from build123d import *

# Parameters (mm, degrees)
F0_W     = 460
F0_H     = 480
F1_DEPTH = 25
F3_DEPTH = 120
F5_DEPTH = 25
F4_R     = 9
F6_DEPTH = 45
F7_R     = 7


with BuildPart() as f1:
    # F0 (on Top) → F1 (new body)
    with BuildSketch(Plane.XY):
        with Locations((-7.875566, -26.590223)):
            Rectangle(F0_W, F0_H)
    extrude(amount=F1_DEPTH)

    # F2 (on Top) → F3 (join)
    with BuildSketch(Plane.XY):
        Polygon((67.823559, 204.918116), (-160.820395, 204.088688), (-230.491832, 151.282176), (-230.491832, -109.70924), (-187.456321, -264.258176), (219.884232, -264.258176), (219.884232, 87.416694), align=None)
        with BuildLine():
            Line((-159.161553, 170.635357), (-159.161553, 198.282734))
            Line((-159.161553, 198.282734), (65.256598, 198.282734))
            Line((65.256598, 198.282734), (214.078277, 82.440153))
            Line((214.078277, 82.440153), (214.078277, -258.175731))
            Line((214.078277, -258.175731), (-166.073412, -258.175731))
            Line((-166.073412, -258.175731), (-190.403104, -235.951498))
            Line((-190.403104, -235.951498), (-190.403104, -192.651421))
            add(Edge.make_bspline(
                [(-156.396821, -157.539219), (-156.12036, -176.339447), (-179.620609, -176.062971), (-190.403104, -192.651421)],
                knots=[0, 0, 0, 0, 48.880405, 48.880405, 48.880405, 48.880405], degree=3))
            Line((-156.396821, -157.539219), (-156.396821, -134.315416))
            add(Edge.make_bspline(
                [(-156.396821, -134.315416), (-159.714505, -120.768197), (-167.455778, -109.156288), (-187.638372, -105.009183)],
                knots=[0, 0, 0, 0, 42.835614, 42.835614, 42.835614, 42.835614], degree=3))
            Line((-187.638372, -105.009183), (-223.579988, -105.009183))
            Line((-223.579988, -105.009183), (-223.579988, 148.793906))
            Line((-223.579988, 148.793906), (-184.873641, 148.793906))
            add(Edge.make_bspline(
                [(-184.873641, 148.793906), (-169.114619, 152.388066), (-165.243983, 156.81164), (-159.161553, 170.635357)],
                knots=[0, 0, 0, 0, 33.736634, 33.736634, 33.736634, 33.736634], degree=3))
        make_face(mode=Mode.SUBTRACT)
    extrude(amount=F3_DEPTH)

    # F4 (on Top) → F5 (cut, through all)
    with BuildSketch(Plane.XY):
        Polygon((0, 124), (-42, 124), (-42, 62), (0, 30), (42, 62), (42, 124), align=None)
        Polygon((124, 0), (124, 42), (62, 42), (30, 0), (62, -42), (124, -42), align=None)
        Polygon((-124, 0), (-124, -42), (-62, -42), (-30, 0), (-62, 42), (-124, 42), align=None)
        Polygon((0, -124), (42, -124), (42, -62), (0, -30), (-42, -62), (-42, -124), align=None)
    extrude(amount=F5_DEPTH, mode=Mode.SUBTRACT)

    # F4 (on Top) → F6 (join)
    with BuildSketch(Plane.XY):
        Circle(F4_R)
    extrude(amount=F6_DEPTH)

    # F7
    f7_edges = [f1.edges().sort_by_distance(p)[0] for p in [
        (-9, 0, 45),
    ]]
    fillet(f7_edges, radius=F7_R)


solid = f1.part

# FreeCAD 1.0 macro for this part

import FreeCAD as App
import Part
import Sketcher

V = App.Vector
Q = App.Units.Quantity


def edges_at(feature, points):
    """Names of the edges that pass closest to the given points."""
    edges = feature.Shape.Edges
    near = lambda p: min(range(len(edges)), key=lambda i: edges[i].distToShape(Part.Vertex(*p))[0])
    return sorted({f"Edge{near(p) + 1}" for p in points})

doc = App.newDocument("Part")
params = doc.addObject("Spreadsheet::Sheet", "Params")
for row, (alias, value) in enumerate([
    ("sketch1_width", "460 mm"),
    ("sketch1_height", "480 mm"),
    ("pad1_length", "25 mm"),
    ("pad2_length", "120 mm"),
    ("sketch3_width", "84 mm"),
    ("sketch3_width2", "62 mm"),
    ("sketch4_diameter", "18 mm"),
    ("pad3_length", "45 mm"),
    ("fillet_radius", "7 mm"),
], start=1):
    params.set(f"A{row}", alias)
    params.set(f"B{row}", "=" + value)
    params.setAlias(f"B{row}", alias)

body = doc.addObject("PartDesign::Body", "Body")

# Sketch on XY plane
sketch1 = body.newObject("Sketcher::SketchObject", "Sketch")
sketch1.AttachmentSupport = (doc.getObject("XY_Plane"), [""])
sketch1.MapMode = "FlatFace"
sketch1.addGeometry([
    Part.LineSegment(V(-238, 213, 0), V(-238, -267, 0)),
    Part.LineSegment(V(-238, -267, 0), V(222, -267, 0)),
    Part.LineSegment(V(222, -267, 0), V(222, 213, 0)),
    Part.LineSegment(V(222, 213, 0), V(-238, 213, 0)),
], False)
sketch1.addConstraint([
    Sketcher.Constraint("Coincident", 0, 2, 1, 1),
    Sketcher.Constraint("Coincident", 1, 2, 2, 1),
    Sketcher.Constraint("Coincident", 2, 2, 3, 1),
    Sketcher.Constraint("Coincident", 3, 2, 0, 1),
    Sketcher.Constraint("Vertical", 0),
    Sketcher.Constraint("Horizontal", 1),
    Sketcher.Constraint("Vertical", 2),
    Sketcher.Constraint("Horizontal", 3),
    Sketcher.Constraint("DistanceX", 1, 1, 1, 2, Q("460 mm")),
    Sketcher.Constraint("DistanceY", 0, 2, 0, 1, Q("480 mm")),
    Sketcher.Constraint("DistanceX", 0, 2, -1, 1, Q("237.875566 mm")),
    Sketcher.Constraint("DistanceY", 0, 2, -1, 1, Q("266.590223 mm")),
])
sketch1.setExpression("Constraints[8]", "Params.sketch1_width")
sketch1.setExpression("Constraints[9]", "Params.sketch1_height")
pad1 = body.newObject("PartDesign::Pad", "Pad")
pad1.Profile = sketch1
pad1.setExpression("Length", "Params.pad1_length")

# Sketch on XY plane
sketch2 = body.newObject("Sketcher::SketchObject", "Sketch001")
sketch2.AttachmentSupport = (doc.getObject("XY_Plane"), [""])
sketch2.MapMode = "FlatFace"
sketch2.addGeometry([
    Part.LineSegment(V(67.823559, 204.918116, 0), V(-160.820395, 204.088688, 0)),  # 0
    Part.LineSegment(V(-160.820395, 204.088688, 0), V(-230.491832, 151.282176, 0)),  # 1
    Part.LineSegment(V(-230.491832, 151.282176, 0), V(-230.491832, -109.70924, 0)),  # 2
    Part.LineSegment(V(-230.491832, -109.70924, 0), V(-187.456321, -264.258176, 0)),  # 3
    Part.LineSegment(V(-187.456321, -264.258176, 0), V(219.884232, -264.258176, 0)),  # 4
    Part.LineSegment(V(219.884232, -264.258176, 0), V(219.884232, 87.416694, 0)),  # 5
    Part.LineSegment(V(219.884232, 87.416694, 0), V(67.823559, 204.918116, 0)),  # 6
    Part.BSplineCurve([V(-184.873641, 148.793906, 0), V(-169.114619, 152.388066, 0), V(-165.243983, 156.81164, 0), V(-159.161553, 170.635357, 0)], [4, 4], [0, 33.736634], False, 3, [1, 1, 1, 1], False),  # 7
    Part.LineSegment(V(-159.161553, 170.635357, 0), V(-159.161553, 198.282734, 0)),  # 8
    Part.LineSegment(V(-159.161553, 198.282734, 0), V(65.256598, 198.282734, 0)),  # 9
    Part.LineSegment(V(65.256598, 198.282734, 0), V(214.078277, 82.440153, 0)),  # 10
    Part.LineSegment(V(214.078277, 82.440153, 0), V(214.078277, -258.175731, 0)),  # 11
    Part.LineSegment(V(214.078277, -258.175731, 0), V(-166.073412, -258.175731, 0)),  # 12
    Part.LineSegment(V(-166.073412, -258.175731, 0), V(-190.403104, -235.951498, 0)),  # 13
    Part.LineSegment(V(-190.403104, -235.951498, 0), V(-190.403104, -192.651421, 0)),  # 14
    Part.BSplineCurve([V(-156.396821, -157.539219, 0), V(-156.12036, -176.339447, 0), V(-179.620609, -176.062971, 0), V(-190.403104, -192.651421, 0)], [4, 4], [0, 48.880405], False, 3, [1, 1, 1, 1], False),  # 15
    Part.LineSegment(V(-156.396821, -157.539219, 0), V(-156.396821, -134.315416, 0)),  # 16
    Part.BSplineCurve([V(-156.396821, -134.315416, 0), V(-159.714505, -120.768197, 0), V(-167.455778, -109.156288, 0), V(-187.638372, -105.009183, 0)], [4, 4], [0, 42.835614], False, 3, [1, 1, 1, 1], False),  # 17
    Part.LineSegment(V(-187.638372, -105.009183, 0), V(-223.579988, -105.009183, 0)),  # 18
    Part.LineSegment(V(-223.579988, -105.009183, 0), V(-223.579988, 148.793906, 0)),  # 19
    Part.LineSegment(V(-223.579988, 148.793906, 0), V(-184.873641, 148.793906, 0)),  # 20
], False)
sketch2.addConstraint([
    Sketcher.Constraint("Block", 7),
    Sketcher.Constraint("Block", 15),
    Sketcher.Constraint("Block", 17),
    Sketcher.Constraint("Coincident", 0, 2, 1, 1),
    Sketcher.Constraint("Coincident", 1, 2, 2, 1),
    Sketcher.Constraint("Coincident", 2, 2, 3, 1),
    Sketcher.Constraint("Coincident", 3, 2, 4, 1),
    Sketcher.Constraint("Coincident", 4, 2, 5, 1),
    Sketcher.Constraint("Coincident", 5, 2, 6, 1),
    Sketcher.Constraint("Coincident", 6, 2, 0, 1),
    Sketcher.Constraint("Coincident", 7, 2, 8, 1),
    Sketcher.Constraint("Coincident", 8, 2, 9, 1),
    Sketcher.Constraint("Coincident", 9, 2, 10, 1),
    Sketcher.Constraint("Coincident", 10, 2, 11, 1),
    Sketcher.Constraint("Coincident", 11, 2, 12, 1),
    Sketcher.Constraint("Coincident", 12, 2, 13, 1),
    Sketcher.Constraint("Coincident", 13, 2, 14, 1),
    Sketcher.Constraint("Coincident", 14, 2, 15, 2),
    Sketcher.Constraint("Coincident", 15, 1, 16, 1),
    Sketcher.Constraint("Coincident", 16, 2, 17, 1),
    Sketcher.Constraint("Coincident", 17, 2, 18, 1),
    Sketcher.Constraint("Coincident", 18, 2, 19, 1),
    Sketcher.Constraint("Coincident", 19, 2, 20, 1),
    Sketcher.Constraint("Coincident", 20, 2, 7, 1),
    Sketcher.Constraint("Vertical", 2),
    Sketcher.Constraint("Horizontal", 4),
    Sketcher.Constraint("Vertical", 5),
    Sketcher.Constraint("Vertical", 8),
    Sketcher.Constraint("Horizontal", 9),
    Sketcher.Constraint("Vertical", 11),
    Sketcher.Constraint("Horizontal", 12),
    Sketcher.Constraint("Vertical", 14),
    Sketcher.Constraint("Horizontal", 18),
    Sketcher.Constraint("Vertical", 19),
    Sketcher.Constraint("Horizontal", 20),
    Sketcher.Constraint("Distance", 10, Q("188.593202 mm")),
    Sketcher.Constraint("DistanceX", 9, 1, 9, 2, Q("224.418151 mm")),
    Sketcher.Constraint("DistanceX", 12, 2, 12, 1, Q("380.151689 mm")),
    Sketcher.Constraint("DistanceY", 5, 1, 5, 2, Q("351.67487 mm")),
    Sketcher.Constraint("DistanceX", 3, 2, 11, 2, Q("401.534598 mm")),
    Sketcher.Constraint("DistanceX", 3, 2, 16, 2, Q("31.0595 mm")),
    Sketcher.Constraint("Distance", 0, Q("228.645458 mm")),
    Sketcher.Constraint("Distance", 3, Q("160.42889 mm")),
    Sketcher.Constraint("Distance", 6, Q("192.169281 mm")),
    Sketcher.Constraint("DistanceX", 4, 1, 4, 2, Q("407.340553 mm")),
    Sketcher.Constraint("DistanceX", 18, 2, 18, 1, Q("35.941616 mm")),
    Sketcher.Constraint("DistanceY", 2, 2, 2, 1, Q("260.991416 mm")),
    Sketcher.Constraint("DistanceY", 8, 1, 8, 2, Q("27.647377 mm")),
    Sketcher.Constraint("DistanceY", 11, 2, 11, 1, Q("340.615884 mm")),
    Sketcher.Constraint("DistanceY", 14, 1, 14, 2, Q("43.300077 mm")),
    Sketcher.Constraint("DistanceX", 1, 2, -1, 1, Q("230.491832 mm")),
    Sketcher.Constraint("DistanceY", 2, 2, -1, 1, Q("109.70924 mm")),
    Sketcher.Constraint("DistanceX", -1, 1, 6, 2, Q("67.823559 mm")),
    Sketcher.Constraint("DistanceY", 1, 2, 0, 2, Q("52.806512 mm")),
])
pad2 = body.newObject("PartDesign::Pad", "Pad001")
pad2.Profile = sketch2
pad2.setExpression("Length", "Params.pad2_length")

# Sketch on XY plane
sketch3 = body.newObject("Sketcher::SketchObject", "Sketch002")
sketch3.AttachmentSupport = (doc.getObject("XY_Plane"), [""])
sketch3.MapMode = "FlatFace"
sketch3.addGeometry([
    Part.LineSegment(V(-42, 124, 0), V(-42, 62, 0)),  # 0
    Part.LineSegment(V(-42, 62, 0), V(0, 30, 0)),  # 1
    Part.LineSegment(V(0, 30, 0), V(42, 62, 0)),  # 2
    Part.LineSegment(V(42, 62, 0), V(42, 124, 0)),  # 3
    Part.LineSegment(V(42, 124, 0), V(-42, 124, 0)),  # 4
    Part.LineSegment(V(124, 42, 0), V(62, 42, 0)),  # 5
    Part.LineSegment(V(62, 42, 0), V(30, 0, 0)),  # 6
    Part.LineSegment(V(30, 0, 0), V(62, -42, 0)),  # 7
    Part.LineSegment(V(62, -42, 0), V(124, -42, 0)),  # 8
    Part.LineSegment(V(124, -42, 0), V(124, 42, 0)),  # 9
    Part.LineSegment(V(-124, -42, 0), V(-62, -42, 0)),  # 10
    Part.LineSegment(V(-62, -42, 0), V(-30, 0, 0)),  # 11
    Part.LineSegment(V(-30, 0, 0), V(-62, 42, 0)),  # 12
    Part.LineSegment(V(-62, 42, 0), V(-124, 42, 0)),  # 13
    Part.LineSegment(V(-124, 42, 0), V(-124, -42, 0)),  # 14
    Part.LineSegment(V(42, -124, 0), V(42, -62, 0)),  # 15
    Part.LineSegment(V(42, -62, 0), V(0, -30, 0)),  # 16
    Part.LineSegment(V(0, -30, 0), V(-42, -62, 0)),  # 17
    Part.LineSegment(V(-42, -62, 0), V(-42, -124, 0)),  # 18
    Part.LineSegment(V(-42, -124, 0), V(42, -124, 0)),  # 19
], False)
sketch3.addConstraint([
    Sketcher.Constraint("Coincident", 0, 2, 1, 1),
    Sketcher.Constraint("Coincident", 1, 2, 2, 1),
    Sketcher.Constraint("Coincident", 2, 2, 3, 1),
    Sketcher.Constraint("Coincident", 3, 2, 4, 1),
    Sketcher.Constraint("Coincident", 4, 2, 0, 1),
    Sketcher.Constraint("Coincident", 5, 2, 6, 1),
    Sketcher.Constraint("Coincident", 6, 2, 7, 1),
    Sketcher.Constraint("Coincident", 7, 2, 8, 1),
    Sketcher.Constraint("Coincident", 8, 2, 9, 1),
    Sketcher.Constraint("Coincident", 9, 2, 5, 1),
    Sketcher.Constraint("Coincident", 10, 2, 11, 1),
    Sketcher.Constraint("Coincident", 11, 2, 12, 1),
    Sketcher.Constraint("Coincident", 12, 2, 13, 1),
    Sketcher.Constraint("Coincident", 13, 2, 14, 1),
    Sketcher.Constraint("Coincident", 14, 2, 10, 1),
    Sketcher.Constraint("Coincident", 15, 2, 16, 1),
    Sketcher.Constraint("Coincident", 16, 2, 17, 1),
    Sketcher.Constraint("Coincident", 17, 2, 18, 1),
    Sketcher.Constraint("Coincident", 18, 2, 19, 1),
    Sketcher.Constraint("Coincident", 19, 2, 15, 1),
    Sketcher.Constraint("Vertical", 0),
    Sketcher.Constraint("Vertical", 3),
    Sketcher.Constraint("Horizontal", 4),
    Sketcher.Constraint("Horizontal", 5),
    Sketcher.Constraint("Horizontal", 8),
    Sketcher.Constraint("Vertical", 9),
    Sketcher.Constraint("Horizontal", 10),
    Sketcher.Constraint("Horizontal", 13),
    Sketcher.Constraint("Vertical", 14),
    Sketcher.Constraint("Vertical", 15),
    Sketcher.Constraint("Vertical", 18),
    Sketcher.Constraint("Horizontal", 19),
    Sketcher.Constraint("Symmetric", 5, 2, 10, 2, -1, 1),
    Sketcher.Constraint("Symmetric", 6, 2, 11, 2, -1, 1),
    Sketcher.Constraint("Symmetric", 7, 2, 12, 2, -1, 1),
    Sketcher.Constraint("Symmetric", 0, 2, 15, 2, -1, 1),
    Sketcher.Constraint("Symmetric", 1, 2, 16, 2, -1, 1),
    Sketcher.Constraint("Symmetric", 2, 2, 17, 2, -1, 1),
    Sketcher.Constraint("Symmetric", 0, 2, 2, 2, -2),
    Sketcher.Constraint("Symmetric", 7, 2, 10, 2, -2),
    Sketcher.Constraint("PointOnObject", 1, 2, -2),
    Sketcher.Constraint("PointOnObject", 6, 2, -1),
    Sketcher.Constraint("Perpendicular", 1, 6),
    Sketcher.Constraint("Equal", 8, 10),
    Sketcher.Constraint("Equal", 13, 0),
    Sketcher.Constraint("Equal", 19, 9),
    Sketcher.Constraint("Equal", 3, 15),
    Sketcher.Constraint("DistanceX", 4, 2, 4, 1, Q("84 mm")),
    Sketcher.Constraint("DistanceX", 5, 2, 5, 1, Q("62 mm")),
    Sketcher.Constraint("DistanceY", -1, 1, 0, 2, Q("62 mm")),
    Sketcher.Constraint("DistanceY", -1, 1, 1, 2, Q("30 mm")),
    Sketcher.Constraint("DistanceX", -1, 1, 5, 2, Q("62 mm")),
])
sketch3.setExpression("Constraints[47]", "Params.sketch3_width")
sketch3.setExpression("Constraints[48]", "Params.sketch3_width2")
pocket1 = body.newObject("PartDesign::Pocket", "Pocket")
pocket1.Profile = sketch3
pocket1.Type = "ThroughAll"
pocket1.Reversed = True

# Sketch on XY plane
sketch4 = body.newObject("Sketcher::SketchObject", "Sketch003")
sketch4.AttachmentSupport = (doc.getObject("XY_Plane"), [""])
sketch4.MapMode = "FlatFace"
sketch4.addGeometry(Part.Circle(V(0, 0, 0), V(0, 0, 1), 9), False)
sketch4.addConstraint([
    Sketcher.Constraint("Coincident", 0, 3, -1, 1),
    Sketcher.Constraint("Diameter", 0, Q("18 mm")),
])
sketch4.setExpression("Constraints[1]", "Params.sketch4_diameter")
pad3 = body.newObject("PartDesign::Pad", "Pad002")
pad3.Profile = sketch4
pad3.setExpression("Length", "Params.pad3_length")
doc.recompute()

fillet = body.newObject("PartDesign::Fillet", "Fillet")
fillet.Base = (pad3, edges_at(pad3, [(-9, 0, 45)]))
fillet.setExpression("Radius", "Params.fillet_radius")

doc.recompute()
